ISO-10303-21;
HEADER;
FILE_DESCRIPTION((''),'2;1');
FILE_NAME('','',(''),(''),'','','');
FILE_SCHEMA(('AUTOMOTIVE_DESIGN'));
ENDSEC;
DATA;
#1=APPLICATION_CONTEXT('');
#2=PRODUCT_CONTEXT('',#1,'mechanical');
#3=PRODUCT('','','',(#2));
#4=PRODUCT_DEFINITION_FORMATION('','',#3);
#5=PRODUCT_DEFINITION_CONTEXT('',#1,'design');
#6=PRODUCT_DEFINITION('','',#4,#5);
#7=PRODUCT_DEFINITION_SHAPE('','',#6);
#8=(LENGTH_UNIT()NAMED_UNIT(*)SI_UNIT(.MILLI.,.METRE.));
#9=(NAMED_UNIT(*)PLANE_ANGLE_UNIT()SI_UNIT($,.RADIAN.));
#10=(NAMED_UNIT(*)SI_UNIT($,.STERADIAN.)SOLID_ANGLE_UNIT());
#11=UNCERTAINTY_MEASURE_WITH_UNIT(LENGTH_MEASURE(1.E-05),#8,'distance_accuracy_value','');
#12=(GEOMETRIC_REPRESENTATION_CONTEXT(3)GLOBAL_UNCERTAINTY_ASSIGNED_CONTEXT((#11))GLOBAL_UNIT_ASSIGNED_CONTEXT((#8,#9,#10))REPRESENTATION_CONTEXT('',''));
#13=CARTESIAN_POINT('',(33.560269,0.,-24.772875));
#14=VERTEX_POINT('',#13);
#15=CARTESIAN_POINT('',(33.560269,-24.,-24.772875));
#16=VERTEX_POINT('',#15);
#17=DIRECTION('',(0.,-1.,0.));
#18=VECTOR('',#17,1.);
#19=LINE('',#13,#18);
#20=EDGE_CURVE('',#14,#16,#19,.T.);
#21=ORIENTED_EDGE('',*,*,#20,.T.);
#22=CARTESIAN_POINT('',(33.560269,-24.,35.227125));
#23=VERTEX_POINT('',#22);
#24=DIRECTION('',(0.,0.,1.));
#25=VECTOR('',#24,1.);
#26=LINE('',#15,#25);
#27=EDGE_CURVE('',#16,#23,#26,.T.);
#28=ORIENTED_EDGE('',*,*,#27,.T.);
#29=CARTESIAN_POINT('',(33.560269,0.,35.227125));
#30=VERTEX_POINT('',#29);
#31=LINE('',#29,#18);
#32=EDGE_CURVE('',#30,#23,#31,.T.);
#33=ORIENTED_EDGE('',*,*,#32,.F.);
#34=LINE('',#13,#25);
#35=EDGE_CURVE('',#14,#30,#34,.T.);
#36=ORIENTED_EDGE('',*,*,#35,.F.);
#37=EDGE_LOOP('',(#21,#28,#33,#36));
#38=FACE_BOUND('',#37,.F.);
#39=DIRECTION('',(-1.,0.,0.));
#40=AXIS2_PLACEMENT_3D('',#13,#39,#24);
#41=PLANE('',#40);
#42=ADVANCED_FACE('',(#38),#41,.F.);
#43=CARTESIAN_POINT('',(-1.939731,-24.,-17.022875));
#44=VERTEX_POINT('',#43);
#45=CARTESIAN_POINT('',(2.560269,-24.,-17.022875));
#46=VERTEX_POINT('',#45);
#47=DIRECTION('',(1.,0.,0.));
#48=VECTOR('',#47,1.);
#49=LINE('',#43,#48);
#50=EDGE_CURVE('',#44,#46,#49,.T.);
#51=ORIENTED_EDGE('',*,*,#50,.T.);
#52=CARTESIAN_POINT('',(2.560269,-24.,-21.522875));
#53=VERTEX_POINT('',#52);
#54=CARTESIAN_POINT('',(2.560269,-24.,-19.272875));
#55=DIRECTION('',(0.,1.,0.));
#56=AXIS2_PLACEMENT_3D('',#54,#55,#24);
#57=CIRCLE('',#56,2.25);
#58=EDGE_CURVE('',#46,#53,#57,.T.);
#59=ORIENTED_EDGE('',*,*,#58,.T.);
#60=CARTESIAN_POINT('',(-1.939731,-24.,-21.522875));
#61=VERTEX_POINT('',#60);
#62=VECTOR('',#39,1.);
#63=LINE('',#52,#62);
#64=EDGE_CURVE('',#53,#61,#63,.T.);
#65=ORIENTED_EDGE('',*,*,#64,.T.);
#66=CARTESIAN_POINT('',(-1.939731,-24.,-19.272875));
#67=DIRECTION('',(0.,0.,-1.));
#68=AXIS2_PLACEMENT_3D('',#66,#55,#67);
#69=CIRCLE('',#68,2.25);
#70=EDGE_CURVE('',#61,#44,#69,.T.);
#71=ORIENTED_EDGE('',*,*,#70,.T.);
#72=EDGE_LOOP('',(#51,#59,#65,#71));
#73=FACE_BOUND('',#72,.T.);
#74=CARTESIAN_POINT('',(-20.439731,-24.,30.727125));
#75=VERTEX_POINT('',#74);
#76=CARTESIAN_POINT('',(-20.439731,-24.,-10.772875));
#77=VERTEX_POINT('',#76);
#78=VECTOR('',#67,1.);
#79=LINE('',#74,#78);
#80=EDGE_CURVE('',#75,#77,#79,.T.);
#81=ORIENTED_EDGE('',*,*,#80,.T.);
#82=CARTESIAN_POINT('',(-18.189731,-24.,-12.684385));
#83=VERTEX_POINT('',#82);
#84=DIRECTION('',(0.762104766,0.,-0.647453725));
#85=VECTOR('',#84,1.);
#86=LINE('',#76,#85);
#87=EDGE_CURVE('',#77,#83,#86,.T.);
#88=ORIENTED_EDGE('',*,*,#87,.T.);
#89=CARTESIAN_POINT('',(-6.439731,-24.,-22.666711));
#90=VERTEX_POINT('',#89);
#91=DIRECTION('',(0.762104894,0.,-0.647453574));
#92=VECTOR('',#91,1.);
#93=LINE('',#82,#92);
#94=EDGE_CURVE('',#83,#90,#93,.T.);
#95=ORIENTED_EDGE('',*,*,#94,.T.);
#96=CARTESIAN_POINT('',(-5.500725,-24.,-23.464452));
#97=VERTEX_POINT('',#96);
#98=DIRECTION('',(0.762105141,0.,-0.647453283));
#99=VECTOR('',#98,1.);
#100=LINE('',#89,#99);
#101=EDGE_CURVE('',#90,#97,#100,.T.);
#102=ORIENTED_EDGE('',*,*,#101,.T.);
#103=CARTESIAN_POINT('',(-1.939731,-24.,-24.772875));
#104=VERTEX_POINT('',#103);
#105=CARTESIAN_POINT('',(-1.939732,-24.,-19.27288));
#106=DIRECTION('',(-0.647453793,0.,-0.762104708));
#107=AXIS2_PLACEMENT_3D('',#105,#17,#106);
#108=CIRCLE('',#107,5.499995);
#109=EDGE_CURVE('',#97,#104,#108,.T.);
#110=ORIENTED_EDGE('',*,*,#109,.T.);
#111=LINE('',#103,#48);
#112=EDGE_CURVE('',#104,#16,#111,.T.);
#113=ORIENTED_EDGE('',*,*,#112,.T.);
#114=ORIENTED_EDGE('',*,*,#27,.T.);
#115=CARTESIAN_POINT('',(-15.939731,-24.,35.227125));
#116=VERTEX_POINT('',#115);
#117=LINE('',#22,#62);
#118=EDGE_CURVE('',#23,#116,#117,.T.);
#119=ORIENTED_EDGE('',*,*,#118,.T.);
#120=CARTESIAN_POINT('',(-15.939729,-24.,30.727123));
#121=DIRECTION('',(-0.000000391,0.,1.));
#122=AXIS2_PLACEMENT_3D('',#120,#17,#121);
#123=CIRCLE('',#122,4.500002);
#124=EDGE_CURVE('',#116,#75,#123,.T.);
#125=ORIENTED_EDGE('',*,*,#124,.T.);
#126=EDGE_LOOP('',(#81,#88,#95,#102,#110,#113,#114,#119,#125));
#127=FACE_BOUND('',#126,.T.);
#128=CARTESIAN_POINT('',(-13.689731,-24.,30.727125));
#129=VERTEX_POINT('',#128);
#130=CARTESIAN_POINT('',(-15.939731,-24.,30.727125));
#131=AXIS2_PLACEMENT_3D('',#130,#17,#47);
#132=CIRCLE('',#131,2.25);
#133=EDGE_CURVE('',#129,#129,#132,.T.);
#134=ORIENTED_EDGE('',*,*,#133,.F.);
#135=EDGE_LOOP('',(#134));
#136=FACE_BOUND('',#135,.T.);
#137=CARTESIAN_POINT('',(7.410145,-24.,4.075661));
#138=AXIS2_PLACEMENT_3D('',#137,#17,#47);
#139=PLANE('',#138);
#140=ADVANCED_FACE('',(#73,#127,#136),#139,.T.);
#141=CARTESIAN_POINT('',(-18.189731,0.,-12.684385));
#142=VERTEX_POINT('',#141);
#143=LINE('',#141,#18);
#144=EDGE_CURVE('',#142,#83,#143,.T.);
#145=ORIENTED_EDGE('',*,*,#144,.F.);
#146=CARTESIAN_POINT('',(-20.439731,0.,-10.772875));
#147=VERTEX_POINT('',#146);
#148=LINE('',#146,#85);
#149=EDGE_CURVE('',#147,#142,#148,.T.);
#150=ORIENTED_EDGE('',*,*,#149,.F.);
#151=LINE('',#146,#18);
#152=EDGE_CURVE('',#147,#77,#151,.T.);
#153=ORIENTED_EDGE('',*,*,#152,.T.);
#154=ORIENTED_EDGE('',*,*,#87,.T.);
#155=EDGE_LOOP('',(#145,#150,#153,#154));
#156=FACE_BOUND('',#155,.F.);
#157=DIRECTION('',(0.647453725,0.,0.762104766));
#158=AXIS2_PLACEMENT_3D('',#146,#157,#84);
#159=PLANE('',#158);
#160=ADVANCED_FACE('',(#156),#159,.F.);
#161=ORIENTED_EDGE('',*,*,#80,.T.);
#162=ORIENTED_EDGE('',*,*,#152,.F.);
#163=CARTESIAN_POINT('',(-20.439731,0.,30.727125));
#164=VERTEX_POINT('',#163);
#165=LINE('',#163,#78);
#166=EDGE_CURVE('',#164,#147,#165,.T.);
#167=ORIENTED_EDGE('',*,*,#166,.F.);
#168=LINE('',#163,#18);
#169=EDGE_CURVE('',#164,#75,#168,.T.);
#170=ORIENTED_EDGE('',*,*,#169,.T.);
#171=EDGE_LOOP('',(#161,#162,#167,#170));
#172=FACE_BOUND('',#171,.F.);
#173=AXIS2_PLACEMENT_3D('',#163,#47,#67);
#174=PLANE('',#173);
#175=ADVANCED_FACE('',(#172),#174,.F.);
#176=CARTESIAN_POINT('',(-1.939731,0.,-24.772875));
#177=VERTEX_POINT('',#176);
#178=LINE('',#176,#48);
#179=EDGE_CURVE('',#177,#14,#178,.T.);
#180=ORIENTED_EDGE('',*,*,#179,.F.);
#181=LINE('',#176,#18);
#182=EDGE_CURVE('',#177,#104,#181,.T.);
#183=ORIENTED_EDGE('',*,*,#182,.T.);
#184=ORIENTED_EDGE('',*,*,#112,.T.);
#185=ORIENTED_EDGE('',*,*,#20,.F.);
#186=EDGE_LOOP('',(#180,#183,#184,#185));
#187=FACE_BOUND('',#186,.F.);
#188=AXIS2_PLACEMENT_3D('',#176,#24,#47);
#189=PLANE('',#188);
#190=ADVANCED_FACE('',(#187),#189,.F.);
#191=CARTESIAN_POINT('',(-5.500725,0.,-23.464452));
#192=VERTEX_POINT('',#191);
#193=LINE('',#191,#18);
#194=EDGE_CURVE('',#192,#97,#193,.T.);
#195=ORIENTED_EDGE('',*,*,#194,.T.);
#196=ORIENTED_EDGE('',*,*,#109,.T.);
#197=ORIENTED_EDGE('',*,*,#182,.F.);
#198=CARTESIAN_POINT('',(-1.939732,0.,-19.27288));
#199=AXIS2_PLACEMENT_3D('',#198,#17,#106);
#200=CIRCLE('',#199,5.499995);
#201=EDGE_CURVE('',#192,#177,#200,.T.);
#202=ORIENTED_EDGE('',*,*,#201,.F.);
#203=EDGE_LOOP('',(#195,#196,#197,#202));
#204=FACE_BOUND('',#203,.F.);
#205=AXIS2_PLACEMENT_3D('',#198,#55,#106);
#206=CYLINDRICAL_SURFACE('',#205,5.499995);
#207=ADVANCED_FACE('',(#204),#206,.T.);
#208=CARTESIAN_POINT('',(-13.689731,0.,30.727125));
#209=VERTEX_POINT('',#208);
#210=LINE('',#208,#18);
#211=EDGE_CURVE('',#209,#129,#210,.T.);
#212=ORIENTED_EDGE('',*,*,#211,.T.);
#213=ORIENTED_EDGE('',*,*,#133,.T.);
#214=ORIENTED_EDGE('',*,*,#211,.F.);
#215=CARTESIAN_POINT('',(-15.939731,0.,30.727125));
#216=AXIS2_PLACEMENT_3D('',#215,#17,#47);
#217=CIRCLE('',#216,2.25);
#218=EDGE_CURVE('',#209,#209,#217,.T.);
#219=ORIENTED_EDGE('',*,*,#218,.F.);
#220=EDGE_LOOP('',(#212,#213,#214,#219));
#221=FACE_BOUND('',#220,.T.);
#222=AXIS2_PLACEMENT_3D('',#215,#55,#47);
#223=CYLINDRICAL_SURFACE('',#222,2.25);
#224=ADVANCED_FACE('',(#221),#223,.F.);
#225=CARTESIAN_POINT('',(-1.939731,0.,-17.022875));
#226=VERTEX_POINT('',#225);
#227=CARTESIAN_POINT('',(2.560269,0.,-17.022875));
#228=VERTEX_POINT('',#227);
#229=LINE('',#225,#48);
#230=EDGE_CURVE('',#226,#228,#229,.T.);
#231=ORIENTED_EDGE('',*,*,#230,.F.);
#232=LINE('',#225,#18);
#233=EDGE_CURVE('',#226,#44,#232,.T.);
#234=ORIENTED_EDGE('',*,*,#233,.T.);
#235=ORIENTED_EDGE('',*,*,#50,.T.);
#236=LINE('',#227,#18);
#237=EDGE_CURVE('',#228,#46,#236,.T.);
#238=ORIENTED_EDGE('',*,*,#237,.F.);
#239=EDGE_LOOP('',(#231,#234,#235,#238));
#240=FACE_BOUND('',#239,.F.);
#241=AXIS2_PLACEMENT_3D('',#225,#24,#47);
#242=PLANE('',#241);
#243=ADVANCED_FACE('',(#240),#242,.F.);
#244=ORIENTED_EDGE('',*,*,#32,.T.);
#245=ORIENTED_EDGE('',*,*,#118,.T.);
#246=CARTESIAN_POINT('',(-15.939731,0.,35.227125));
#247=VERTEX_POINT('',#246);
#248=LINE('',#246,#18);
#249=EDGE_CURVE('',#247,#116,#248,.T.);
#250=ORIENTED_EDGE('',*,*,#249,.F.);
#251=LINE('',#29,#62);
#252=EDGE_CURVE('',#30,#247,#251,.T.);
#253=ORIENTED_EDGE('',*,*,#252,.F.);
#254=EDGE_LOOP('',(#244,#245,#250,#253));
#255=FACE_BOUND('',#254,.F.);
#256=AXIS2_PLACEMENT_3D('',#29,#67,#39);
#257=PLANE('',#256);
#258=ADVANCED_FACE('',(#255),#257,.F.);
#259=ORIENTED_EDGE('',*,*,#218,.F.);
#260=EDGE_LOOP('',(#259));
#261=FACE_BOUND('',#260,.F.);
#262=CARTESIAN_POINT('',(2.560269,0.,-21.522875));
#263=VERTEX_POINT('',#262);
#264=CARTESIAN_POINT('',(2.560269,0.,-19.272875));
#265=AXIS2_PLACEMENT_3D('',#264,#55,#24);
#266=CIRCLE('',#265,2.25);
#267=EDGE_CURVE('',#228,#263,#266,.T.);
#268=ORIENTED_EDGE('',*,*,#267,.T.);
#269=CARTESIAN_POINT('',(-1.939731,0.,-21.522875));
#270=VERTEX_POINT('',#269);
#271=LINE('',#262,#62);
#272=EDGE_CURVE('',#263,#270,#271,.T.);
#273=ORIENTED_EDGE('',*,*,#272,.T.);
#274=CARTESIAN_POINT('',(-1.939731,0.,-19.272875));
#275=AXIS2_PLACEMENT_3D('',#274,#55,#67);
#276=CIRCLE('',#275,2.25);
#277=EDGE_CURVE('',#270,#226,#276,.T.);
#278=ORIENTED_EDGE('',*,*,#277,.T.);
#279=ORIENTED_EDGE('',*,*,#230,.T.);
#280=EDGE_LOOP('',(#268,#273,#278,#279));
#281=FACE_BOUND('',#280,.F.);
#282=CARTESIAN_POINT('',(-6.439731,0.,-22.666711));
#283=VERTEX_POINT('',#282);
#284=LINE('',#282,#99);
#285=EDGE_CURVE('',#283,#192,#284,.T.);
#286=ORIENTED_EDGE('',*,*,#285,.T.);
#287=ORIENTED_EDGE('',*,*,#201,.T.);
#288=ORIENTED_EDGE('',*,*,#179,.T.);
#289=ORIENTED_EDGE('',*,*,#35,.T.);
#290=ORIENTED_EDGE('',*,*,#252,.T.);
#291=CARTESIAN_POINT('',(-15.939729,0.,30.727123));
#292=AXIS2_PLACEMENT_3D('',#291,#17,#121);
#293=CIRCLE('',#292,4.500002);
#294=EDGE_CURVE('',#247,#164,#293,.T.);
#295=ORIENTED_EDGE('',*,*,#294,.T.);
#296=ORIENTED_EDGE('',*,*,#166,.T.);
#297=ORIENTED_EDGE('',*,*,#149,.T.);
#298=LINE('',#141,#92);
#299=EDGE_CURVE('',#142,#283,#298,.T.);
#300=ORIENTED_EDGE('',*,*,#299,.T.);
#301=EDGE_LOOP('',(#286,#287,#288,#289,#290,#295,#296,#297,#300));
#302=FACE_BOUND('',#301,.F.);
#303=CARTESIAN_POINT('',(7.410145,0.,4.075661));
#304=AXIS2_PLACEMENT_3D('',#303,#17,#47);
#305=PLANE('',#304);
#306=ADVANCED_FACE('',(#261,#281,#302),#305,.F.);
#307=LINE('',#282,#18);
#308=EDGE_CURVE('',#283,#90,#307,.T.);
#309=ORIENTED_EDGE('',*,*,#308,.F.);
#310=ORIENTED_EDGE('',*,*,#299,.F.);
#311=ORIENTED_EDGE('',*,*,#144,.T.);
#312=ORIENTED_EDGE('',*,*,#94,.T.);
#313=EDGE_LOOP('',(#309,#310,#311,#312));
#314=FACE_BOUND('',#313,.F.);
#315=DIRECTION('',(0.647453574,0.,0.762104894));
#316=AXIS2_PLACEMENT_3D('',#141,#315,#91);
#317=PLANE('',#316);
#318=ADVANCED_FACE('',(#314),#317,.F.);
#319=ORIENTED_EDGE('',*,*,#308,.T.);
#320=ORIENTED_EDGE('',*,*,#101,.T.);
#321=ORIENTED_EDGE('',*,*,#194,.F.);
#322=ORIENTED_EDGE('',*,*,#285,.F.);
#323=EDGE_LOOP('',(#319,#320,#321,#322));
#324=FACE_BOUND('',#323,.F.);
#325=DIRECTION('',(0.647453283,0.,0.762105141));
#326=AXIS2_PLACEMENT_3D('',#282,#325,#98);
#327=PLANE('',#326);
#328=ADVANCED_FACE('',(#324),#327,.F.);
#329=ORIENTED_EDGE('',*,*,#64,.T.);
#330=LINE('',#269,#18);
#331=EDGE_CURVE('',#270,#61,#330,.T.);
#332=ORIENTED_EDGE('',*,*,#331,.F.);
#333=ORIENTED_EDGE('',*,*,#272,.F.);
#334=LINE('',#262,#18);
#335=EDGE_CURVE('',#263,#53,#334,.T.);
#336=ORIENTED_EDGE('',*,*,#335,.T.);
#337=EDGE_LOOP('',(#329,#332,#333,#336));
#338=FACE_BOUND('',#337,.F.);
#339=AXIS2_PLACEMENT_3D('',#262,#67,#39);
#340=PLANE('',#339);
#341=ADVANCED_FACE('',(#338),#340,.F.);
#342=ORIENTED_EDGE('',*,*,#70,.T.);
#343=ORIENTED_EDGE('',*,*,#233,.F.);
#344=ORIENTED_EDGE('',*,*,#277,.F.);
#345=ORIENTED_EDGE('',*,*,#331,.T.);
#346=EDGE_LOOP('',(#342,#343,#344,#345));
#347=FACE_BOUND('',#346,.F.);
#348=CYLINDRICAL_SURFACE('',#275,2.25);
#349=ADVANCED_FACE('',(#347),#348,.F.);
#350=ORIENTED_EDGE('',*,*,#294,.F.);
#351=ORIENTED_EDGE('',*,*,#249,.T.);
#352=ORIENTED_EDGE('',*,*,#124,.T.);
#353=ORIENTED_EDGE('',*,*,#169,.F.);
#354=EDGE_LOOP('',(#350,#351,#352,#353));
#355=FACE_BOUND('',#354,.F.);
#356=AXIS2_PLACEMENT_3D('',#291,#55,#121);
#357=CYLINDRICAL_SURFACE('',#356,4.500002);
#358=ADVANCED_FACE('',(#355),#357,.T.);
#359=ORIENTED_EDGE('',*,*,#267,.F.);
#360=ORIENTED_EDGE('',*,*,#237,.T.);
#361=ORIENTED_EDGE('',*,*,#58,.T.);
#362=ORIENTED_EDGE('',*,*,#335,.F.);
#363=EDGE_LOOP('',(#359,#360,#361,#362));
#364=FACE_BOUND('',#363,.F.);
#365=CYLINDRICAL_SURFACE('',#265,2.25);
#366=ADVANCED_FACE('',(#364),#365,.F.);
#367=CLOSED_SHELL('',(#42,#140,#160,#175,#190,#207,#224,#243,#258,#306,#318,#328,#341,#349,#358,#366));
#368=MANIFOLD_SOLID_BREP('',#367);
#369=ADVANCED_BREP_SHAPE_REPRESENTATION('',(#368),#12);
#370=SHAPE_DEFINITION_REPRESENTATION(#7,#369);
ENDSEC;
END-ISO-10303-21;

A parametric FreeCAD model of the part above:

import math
import FreeCAD as App
import Part
import Sketcher
Q = App.Units.Quantity

doc = App.newDocument("Part")
body = doc.addObject("PartDesign::Body", "Body")

sketch1 = body.newObject("Sketcher::SketchObject", "Sketch")
sketch1.AttachmentSupport = (doc.getObject("XZ_Plane"), [""])
sketch1.MapMode = "FlatFace"
sketch1.addGeometry(Part.LineSegment(App.Vector(33.6, 35.2, 0), App.Vector(-15.9, 35.2, 0)), False)
sketch1.addGeometry(Part.ArcOfCircle(Part.Circle(App.Vector(-15.9, 30.7, 0), App.Vector(0, 0, 1), 4.5), math.radians(90), math.radians(180)), False)
sketch1.addGeometry(Part.LineSegment(App.Vector(-20.4, 30.7, 0), App.Vector(-20.4, -10.8, 0)), False)
sketch1.addGeometry(Part.LineSegment(App.Vector(-20.4, -10.8, 0), App.Vector(-18.2, -12.7, 0)), False)
sketch1.addGeometry(Part.LineSegment(App.Vector(-18.2, -12.7, 0), App.Vector(-6.4, -22.7, 0)), False)
sketch1.addGeometry(Part.LineSegment(App.Vector(-6.4, -22.7, 0), App.Vector(-5.5, -23.5, 0)), False)
sketch1.addGeometry(Part.ArcOfCircle(Part.Circle(App.Vector(-1.9, -19.3, 0), App.Vector(0, 0, 1), 5.5), math.radians(-130), math.radians(-90)), False)
sketch1.addGeometry(Part.LineSegment(App.Vector(-1.9, -24.8, 0), App.Vector(33.6, -24.8, 0)), False)
sketch1.addGeometry(Part.LineSegment(App.Vector(33.6, -24.8, 0), App.Vector(33.6, 35.2, 0)), False)
sketch1.addGeometry(Part.LineSegment(App.Vector(2.6, -21.5, 0), App.Vector(-1.9, -21.5, 0)), False)
sketch1.addGeometry(Part.ArcOfCircle(Part.Circle(App.Vector(-1.9, -19.3, 0), App.Vector(0, 0, 1), 2.2), math.radians(90), math.radians(270)), False)
sketch1.addGeometry(Part.LineSegment(App.Vector(-1.9, -17, 0), App.Vector(2.6, -17, 0)), False)
sketch1.addGeometry(Part.ArcOfCircle(Part.Circle(App.Vector(2.6, -19.3, 0), App.Vector(0, 0, 1), 2.2), math.radians(-90), math.radians(90)), False)
sketch1.addGeometry(Part.Circle(App.Vector(-15.9, 30.7, 0), App.Vector(0, 0, 1), 2.2), False)
sketch1.addConstraint(Sketcher.Constraint("Tangent", 0, 2, 1, 1))
sketch1.addConstraint(Sketcher.Constraint("Tangent", 1, 2, 2, 1))
sketch1.addConstraint(Sketcher.Constraint("Coincident", 2, 2, 3, 1))
sketch1.addConstraint(Sketcher.Constraint("Coincident", 3, 2, 4, 1))
sketch1.addConstraint(Sketcher.Constraint("Coincident", 4, 2, 5, 1))
sketch1.addConstraint(Sketcher.Constraint("Tangent", 5, 2, 6, 1))
sketch1.addConstraint(Sketcher.Constraint("Tangent", 6, 2, 7, 1))
sketch1.addConstraint(Sketcher.Constraint("Coincident", 7, 2, 8, 1))
sketch1.addConstraint(Sketcher.Constraint("Coincident", 8, 2, 0, 1))
sketch1.addConstraint(Sketcher.Constraint("Tangent", 9, 2, 10, 2))
sketch1.addConstraint(Sketcher.Constraint("Tangent", 10, 1, 11, 1))
sketch1.addConstraint(Sketcher.Constraint("Tangent", 11, 2, 12, 2))
sketch1.addConstraint(Sketcher.Constraint("Tangent", 12, 1, 9, 1))
sketch1.addConstraint(Sketcher.Constraint("Horizontal", 0))
sketch1.addConstraint(Sketcher.Constraint("Vertical", 2))
sketch1.addConstraint(Sketcher.Constraint("Horizontal", 7))
sketch1.addConstraint(Sketcher.Constraint("Vertical", 8))
sketch1.addConstraint(Sketcher.Constraint("Horizontal", 9))
sketch1.addConstraint(Sketcher.Constraint("Horizontal", 11))
sketch1.addConstraint(Sketcher.Constraint("Coincident", 10, 3, 6, 3))
sketch1.addConstraint(Sketcher.Constraint("Coincident", 13, 3, 1, 3))
sketch1.addConstraint(Sketcher.Constraint("Equal", 12, 13))
sketch1.addConstraint(Sketcher.Constraint("Parallel", 3, 4))
sketch1.addConstraint(Sketcher.Constraint("Parallel", 4, 5))
sketch1.addConstraint(Sketcher.Constraint("Diameter", 13, Q("4.5 mm")))
sketch1.addConstraint(Sketcher.Constraint("Radius", 1, Q("4.500002 mm")))
sketch1.addConstraint(Sketcher.Constraint("DistanceY", 8, 1, 8, 2, Q("60 mm")))
sketch1.addConstraint(Sketcher.Constraint("DistanceX", 0, 2, 0, 1, Q("49.5 mm")))
sketch1.addConstraint(Sketcher.Constraint("DistanceX", 7, 1, 7, 2, Q("35.5 mm")))
sketch1.addConstraint(Sketcher.Constraint("DistanceX", 9, 2, 9, 1, Q("4.5 mm")))
sketch1.addConstraint(Sketcher.Constraint("DistanceY", 2, 2, 2, 1, Q("41.5 mm")))
sketch1.addConstraint(Sketcher.Constraint("DistanceY", 10, 3, 1, 3, Q("49.999998 mm")))
sketch1.addConstraint(Sketcher.Constraint("DistanceX", 4, 2, 12, 3, Q("9 mm")))
sketch1.addConstraint(Sketcher.Constraint("DistanceX", 2, 2, 3, 2, Q("2.25 mm")))
sketch1.addConstraint(Sketcher.Constraint("DistanceX", 1, 3, -1, 1, Q("15.939729 mm")))
sketch1.addConstraint(Sketcher.Constraint("DistanceY", 6, 3, -1, 1, Q("19.27288 mm")))
pad1 = body.newObject("PartDesign::Pad", "Pad")
pad1.Profile = sketch1
pad1.Length = 24

doc.recompute()
